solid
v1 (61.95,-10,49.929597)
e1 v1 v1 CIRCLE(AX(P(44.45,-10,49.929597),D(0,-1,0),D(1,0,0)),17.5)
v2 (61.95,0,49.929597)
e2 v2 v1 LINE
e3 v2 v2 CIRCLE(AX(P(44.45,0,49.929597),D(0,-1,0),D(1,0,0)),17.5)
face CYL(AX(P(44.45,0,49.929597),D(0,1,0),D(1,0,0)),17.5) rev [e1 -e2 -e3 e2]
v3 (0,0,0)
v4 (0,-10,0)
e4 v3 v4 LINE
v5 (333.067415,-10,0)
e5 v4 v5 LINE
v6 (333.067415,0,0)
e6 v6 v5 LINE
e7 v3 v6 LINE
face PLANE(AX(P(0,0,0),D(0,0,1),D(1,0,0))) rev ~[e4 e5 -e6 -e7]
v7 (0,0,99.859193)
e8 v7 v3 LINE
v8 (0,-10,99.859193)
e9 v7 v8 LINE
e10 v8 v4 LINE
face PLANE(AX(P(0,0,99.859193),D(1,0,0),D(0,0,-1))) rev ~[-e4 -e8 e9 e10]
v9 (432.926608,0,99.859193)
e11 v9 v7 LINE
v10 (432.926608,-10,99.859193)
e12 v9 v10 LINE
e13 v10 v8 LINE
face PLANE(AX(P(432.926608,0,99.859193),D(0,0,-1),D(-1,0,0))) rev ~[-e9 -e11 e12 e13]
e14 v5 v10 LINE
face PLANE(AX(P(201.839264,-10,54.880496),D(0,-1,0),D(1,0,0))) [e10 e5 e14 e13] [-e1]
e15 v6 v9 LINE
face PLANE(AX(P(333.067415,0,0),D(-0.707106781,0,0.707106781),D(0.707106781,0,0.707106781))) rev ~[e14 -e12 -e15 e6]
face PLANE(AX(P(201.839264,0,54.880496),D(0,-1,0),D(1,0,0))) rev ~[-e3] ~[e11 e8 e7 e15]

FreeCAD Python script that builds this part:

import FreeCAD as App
import Part
import Sketcher

V = App.Vector
Q = App.Units.Quantity


def add_polygon(sketch, points):
    """Adds a closed chain of lines whose ends are joined by coincident constraints."""
    first, n = sketch.GeometryCount, len(points)
    for a, b in zip(points, points[1:] + points[:1]):
        sketch.addGeometry(Part.LineSegment(App.Vector(*a, 0), App.Vector(*b, 0)), False)
    for i in range(n):
        sketch.addConstraint(Sketcher.Constraint("Coincident", first + i, 2, first + (i + 1) % n, 1))

doc = App.newDocument("Part")
body = doc.addObject("PartDesign::Body", "Body")

sketch1 = body.newObject("Sketcher::SketchObject", "Sketch")
sketch1.AttachmentSupport = (doc.getObject("XZ_Plane"), [""])
sketch1.MapMode = "FlatFace"
add_polygon(sketch1, [(333.067415, 0), (432.926608, 99.859193), (0, 99.859193), (0, 0)])
sketch1.addGeometry(Part.Circle(V(44.45, 49.929597, 0), V(0, 0, 1), 17.5), False)
sketch1.addConstraint(Sketcher.Constraint("Horizontal", 1))
sketch1.addConstraint(Sketcher.Constraint("Vertical", 2))
sketch1.addConstraint(Sketcher.Constraint("Horizontal", 3))
sketch1.addConstraint(Sketcher.Constraint("Coincident", 2, 2, -1, 1))
sketch1.addConstraint(Sketcher.Constraint("Diameter", 4, 35.0))
sketch1.addConstraint(Sketcher.Constraint("Angle", 0, Q("45 deg")))
sketch1.addConstraint(Sketcher.Constraint("DistanceX", -1, 1, 4, 3, 44.45))
sketch1.addConstraint(Sketcher.Constraint("DistanceX", 1, 2, 1, 1, 432.926608))
sketch1.addConstraint(Sketcher.Constraint("DistanceX", 3, 1, 3, 2, 333.067415))
sketch1.addConstraint(Sketcher.Constraint("DistanceY", -1, 1, 4, 3, 49.929597))
pad1 = body.newObject("PartDesign::Pad", "Pad")
pad1.Profile = sketch1
pad1.Length = 10

doc.recompute()
